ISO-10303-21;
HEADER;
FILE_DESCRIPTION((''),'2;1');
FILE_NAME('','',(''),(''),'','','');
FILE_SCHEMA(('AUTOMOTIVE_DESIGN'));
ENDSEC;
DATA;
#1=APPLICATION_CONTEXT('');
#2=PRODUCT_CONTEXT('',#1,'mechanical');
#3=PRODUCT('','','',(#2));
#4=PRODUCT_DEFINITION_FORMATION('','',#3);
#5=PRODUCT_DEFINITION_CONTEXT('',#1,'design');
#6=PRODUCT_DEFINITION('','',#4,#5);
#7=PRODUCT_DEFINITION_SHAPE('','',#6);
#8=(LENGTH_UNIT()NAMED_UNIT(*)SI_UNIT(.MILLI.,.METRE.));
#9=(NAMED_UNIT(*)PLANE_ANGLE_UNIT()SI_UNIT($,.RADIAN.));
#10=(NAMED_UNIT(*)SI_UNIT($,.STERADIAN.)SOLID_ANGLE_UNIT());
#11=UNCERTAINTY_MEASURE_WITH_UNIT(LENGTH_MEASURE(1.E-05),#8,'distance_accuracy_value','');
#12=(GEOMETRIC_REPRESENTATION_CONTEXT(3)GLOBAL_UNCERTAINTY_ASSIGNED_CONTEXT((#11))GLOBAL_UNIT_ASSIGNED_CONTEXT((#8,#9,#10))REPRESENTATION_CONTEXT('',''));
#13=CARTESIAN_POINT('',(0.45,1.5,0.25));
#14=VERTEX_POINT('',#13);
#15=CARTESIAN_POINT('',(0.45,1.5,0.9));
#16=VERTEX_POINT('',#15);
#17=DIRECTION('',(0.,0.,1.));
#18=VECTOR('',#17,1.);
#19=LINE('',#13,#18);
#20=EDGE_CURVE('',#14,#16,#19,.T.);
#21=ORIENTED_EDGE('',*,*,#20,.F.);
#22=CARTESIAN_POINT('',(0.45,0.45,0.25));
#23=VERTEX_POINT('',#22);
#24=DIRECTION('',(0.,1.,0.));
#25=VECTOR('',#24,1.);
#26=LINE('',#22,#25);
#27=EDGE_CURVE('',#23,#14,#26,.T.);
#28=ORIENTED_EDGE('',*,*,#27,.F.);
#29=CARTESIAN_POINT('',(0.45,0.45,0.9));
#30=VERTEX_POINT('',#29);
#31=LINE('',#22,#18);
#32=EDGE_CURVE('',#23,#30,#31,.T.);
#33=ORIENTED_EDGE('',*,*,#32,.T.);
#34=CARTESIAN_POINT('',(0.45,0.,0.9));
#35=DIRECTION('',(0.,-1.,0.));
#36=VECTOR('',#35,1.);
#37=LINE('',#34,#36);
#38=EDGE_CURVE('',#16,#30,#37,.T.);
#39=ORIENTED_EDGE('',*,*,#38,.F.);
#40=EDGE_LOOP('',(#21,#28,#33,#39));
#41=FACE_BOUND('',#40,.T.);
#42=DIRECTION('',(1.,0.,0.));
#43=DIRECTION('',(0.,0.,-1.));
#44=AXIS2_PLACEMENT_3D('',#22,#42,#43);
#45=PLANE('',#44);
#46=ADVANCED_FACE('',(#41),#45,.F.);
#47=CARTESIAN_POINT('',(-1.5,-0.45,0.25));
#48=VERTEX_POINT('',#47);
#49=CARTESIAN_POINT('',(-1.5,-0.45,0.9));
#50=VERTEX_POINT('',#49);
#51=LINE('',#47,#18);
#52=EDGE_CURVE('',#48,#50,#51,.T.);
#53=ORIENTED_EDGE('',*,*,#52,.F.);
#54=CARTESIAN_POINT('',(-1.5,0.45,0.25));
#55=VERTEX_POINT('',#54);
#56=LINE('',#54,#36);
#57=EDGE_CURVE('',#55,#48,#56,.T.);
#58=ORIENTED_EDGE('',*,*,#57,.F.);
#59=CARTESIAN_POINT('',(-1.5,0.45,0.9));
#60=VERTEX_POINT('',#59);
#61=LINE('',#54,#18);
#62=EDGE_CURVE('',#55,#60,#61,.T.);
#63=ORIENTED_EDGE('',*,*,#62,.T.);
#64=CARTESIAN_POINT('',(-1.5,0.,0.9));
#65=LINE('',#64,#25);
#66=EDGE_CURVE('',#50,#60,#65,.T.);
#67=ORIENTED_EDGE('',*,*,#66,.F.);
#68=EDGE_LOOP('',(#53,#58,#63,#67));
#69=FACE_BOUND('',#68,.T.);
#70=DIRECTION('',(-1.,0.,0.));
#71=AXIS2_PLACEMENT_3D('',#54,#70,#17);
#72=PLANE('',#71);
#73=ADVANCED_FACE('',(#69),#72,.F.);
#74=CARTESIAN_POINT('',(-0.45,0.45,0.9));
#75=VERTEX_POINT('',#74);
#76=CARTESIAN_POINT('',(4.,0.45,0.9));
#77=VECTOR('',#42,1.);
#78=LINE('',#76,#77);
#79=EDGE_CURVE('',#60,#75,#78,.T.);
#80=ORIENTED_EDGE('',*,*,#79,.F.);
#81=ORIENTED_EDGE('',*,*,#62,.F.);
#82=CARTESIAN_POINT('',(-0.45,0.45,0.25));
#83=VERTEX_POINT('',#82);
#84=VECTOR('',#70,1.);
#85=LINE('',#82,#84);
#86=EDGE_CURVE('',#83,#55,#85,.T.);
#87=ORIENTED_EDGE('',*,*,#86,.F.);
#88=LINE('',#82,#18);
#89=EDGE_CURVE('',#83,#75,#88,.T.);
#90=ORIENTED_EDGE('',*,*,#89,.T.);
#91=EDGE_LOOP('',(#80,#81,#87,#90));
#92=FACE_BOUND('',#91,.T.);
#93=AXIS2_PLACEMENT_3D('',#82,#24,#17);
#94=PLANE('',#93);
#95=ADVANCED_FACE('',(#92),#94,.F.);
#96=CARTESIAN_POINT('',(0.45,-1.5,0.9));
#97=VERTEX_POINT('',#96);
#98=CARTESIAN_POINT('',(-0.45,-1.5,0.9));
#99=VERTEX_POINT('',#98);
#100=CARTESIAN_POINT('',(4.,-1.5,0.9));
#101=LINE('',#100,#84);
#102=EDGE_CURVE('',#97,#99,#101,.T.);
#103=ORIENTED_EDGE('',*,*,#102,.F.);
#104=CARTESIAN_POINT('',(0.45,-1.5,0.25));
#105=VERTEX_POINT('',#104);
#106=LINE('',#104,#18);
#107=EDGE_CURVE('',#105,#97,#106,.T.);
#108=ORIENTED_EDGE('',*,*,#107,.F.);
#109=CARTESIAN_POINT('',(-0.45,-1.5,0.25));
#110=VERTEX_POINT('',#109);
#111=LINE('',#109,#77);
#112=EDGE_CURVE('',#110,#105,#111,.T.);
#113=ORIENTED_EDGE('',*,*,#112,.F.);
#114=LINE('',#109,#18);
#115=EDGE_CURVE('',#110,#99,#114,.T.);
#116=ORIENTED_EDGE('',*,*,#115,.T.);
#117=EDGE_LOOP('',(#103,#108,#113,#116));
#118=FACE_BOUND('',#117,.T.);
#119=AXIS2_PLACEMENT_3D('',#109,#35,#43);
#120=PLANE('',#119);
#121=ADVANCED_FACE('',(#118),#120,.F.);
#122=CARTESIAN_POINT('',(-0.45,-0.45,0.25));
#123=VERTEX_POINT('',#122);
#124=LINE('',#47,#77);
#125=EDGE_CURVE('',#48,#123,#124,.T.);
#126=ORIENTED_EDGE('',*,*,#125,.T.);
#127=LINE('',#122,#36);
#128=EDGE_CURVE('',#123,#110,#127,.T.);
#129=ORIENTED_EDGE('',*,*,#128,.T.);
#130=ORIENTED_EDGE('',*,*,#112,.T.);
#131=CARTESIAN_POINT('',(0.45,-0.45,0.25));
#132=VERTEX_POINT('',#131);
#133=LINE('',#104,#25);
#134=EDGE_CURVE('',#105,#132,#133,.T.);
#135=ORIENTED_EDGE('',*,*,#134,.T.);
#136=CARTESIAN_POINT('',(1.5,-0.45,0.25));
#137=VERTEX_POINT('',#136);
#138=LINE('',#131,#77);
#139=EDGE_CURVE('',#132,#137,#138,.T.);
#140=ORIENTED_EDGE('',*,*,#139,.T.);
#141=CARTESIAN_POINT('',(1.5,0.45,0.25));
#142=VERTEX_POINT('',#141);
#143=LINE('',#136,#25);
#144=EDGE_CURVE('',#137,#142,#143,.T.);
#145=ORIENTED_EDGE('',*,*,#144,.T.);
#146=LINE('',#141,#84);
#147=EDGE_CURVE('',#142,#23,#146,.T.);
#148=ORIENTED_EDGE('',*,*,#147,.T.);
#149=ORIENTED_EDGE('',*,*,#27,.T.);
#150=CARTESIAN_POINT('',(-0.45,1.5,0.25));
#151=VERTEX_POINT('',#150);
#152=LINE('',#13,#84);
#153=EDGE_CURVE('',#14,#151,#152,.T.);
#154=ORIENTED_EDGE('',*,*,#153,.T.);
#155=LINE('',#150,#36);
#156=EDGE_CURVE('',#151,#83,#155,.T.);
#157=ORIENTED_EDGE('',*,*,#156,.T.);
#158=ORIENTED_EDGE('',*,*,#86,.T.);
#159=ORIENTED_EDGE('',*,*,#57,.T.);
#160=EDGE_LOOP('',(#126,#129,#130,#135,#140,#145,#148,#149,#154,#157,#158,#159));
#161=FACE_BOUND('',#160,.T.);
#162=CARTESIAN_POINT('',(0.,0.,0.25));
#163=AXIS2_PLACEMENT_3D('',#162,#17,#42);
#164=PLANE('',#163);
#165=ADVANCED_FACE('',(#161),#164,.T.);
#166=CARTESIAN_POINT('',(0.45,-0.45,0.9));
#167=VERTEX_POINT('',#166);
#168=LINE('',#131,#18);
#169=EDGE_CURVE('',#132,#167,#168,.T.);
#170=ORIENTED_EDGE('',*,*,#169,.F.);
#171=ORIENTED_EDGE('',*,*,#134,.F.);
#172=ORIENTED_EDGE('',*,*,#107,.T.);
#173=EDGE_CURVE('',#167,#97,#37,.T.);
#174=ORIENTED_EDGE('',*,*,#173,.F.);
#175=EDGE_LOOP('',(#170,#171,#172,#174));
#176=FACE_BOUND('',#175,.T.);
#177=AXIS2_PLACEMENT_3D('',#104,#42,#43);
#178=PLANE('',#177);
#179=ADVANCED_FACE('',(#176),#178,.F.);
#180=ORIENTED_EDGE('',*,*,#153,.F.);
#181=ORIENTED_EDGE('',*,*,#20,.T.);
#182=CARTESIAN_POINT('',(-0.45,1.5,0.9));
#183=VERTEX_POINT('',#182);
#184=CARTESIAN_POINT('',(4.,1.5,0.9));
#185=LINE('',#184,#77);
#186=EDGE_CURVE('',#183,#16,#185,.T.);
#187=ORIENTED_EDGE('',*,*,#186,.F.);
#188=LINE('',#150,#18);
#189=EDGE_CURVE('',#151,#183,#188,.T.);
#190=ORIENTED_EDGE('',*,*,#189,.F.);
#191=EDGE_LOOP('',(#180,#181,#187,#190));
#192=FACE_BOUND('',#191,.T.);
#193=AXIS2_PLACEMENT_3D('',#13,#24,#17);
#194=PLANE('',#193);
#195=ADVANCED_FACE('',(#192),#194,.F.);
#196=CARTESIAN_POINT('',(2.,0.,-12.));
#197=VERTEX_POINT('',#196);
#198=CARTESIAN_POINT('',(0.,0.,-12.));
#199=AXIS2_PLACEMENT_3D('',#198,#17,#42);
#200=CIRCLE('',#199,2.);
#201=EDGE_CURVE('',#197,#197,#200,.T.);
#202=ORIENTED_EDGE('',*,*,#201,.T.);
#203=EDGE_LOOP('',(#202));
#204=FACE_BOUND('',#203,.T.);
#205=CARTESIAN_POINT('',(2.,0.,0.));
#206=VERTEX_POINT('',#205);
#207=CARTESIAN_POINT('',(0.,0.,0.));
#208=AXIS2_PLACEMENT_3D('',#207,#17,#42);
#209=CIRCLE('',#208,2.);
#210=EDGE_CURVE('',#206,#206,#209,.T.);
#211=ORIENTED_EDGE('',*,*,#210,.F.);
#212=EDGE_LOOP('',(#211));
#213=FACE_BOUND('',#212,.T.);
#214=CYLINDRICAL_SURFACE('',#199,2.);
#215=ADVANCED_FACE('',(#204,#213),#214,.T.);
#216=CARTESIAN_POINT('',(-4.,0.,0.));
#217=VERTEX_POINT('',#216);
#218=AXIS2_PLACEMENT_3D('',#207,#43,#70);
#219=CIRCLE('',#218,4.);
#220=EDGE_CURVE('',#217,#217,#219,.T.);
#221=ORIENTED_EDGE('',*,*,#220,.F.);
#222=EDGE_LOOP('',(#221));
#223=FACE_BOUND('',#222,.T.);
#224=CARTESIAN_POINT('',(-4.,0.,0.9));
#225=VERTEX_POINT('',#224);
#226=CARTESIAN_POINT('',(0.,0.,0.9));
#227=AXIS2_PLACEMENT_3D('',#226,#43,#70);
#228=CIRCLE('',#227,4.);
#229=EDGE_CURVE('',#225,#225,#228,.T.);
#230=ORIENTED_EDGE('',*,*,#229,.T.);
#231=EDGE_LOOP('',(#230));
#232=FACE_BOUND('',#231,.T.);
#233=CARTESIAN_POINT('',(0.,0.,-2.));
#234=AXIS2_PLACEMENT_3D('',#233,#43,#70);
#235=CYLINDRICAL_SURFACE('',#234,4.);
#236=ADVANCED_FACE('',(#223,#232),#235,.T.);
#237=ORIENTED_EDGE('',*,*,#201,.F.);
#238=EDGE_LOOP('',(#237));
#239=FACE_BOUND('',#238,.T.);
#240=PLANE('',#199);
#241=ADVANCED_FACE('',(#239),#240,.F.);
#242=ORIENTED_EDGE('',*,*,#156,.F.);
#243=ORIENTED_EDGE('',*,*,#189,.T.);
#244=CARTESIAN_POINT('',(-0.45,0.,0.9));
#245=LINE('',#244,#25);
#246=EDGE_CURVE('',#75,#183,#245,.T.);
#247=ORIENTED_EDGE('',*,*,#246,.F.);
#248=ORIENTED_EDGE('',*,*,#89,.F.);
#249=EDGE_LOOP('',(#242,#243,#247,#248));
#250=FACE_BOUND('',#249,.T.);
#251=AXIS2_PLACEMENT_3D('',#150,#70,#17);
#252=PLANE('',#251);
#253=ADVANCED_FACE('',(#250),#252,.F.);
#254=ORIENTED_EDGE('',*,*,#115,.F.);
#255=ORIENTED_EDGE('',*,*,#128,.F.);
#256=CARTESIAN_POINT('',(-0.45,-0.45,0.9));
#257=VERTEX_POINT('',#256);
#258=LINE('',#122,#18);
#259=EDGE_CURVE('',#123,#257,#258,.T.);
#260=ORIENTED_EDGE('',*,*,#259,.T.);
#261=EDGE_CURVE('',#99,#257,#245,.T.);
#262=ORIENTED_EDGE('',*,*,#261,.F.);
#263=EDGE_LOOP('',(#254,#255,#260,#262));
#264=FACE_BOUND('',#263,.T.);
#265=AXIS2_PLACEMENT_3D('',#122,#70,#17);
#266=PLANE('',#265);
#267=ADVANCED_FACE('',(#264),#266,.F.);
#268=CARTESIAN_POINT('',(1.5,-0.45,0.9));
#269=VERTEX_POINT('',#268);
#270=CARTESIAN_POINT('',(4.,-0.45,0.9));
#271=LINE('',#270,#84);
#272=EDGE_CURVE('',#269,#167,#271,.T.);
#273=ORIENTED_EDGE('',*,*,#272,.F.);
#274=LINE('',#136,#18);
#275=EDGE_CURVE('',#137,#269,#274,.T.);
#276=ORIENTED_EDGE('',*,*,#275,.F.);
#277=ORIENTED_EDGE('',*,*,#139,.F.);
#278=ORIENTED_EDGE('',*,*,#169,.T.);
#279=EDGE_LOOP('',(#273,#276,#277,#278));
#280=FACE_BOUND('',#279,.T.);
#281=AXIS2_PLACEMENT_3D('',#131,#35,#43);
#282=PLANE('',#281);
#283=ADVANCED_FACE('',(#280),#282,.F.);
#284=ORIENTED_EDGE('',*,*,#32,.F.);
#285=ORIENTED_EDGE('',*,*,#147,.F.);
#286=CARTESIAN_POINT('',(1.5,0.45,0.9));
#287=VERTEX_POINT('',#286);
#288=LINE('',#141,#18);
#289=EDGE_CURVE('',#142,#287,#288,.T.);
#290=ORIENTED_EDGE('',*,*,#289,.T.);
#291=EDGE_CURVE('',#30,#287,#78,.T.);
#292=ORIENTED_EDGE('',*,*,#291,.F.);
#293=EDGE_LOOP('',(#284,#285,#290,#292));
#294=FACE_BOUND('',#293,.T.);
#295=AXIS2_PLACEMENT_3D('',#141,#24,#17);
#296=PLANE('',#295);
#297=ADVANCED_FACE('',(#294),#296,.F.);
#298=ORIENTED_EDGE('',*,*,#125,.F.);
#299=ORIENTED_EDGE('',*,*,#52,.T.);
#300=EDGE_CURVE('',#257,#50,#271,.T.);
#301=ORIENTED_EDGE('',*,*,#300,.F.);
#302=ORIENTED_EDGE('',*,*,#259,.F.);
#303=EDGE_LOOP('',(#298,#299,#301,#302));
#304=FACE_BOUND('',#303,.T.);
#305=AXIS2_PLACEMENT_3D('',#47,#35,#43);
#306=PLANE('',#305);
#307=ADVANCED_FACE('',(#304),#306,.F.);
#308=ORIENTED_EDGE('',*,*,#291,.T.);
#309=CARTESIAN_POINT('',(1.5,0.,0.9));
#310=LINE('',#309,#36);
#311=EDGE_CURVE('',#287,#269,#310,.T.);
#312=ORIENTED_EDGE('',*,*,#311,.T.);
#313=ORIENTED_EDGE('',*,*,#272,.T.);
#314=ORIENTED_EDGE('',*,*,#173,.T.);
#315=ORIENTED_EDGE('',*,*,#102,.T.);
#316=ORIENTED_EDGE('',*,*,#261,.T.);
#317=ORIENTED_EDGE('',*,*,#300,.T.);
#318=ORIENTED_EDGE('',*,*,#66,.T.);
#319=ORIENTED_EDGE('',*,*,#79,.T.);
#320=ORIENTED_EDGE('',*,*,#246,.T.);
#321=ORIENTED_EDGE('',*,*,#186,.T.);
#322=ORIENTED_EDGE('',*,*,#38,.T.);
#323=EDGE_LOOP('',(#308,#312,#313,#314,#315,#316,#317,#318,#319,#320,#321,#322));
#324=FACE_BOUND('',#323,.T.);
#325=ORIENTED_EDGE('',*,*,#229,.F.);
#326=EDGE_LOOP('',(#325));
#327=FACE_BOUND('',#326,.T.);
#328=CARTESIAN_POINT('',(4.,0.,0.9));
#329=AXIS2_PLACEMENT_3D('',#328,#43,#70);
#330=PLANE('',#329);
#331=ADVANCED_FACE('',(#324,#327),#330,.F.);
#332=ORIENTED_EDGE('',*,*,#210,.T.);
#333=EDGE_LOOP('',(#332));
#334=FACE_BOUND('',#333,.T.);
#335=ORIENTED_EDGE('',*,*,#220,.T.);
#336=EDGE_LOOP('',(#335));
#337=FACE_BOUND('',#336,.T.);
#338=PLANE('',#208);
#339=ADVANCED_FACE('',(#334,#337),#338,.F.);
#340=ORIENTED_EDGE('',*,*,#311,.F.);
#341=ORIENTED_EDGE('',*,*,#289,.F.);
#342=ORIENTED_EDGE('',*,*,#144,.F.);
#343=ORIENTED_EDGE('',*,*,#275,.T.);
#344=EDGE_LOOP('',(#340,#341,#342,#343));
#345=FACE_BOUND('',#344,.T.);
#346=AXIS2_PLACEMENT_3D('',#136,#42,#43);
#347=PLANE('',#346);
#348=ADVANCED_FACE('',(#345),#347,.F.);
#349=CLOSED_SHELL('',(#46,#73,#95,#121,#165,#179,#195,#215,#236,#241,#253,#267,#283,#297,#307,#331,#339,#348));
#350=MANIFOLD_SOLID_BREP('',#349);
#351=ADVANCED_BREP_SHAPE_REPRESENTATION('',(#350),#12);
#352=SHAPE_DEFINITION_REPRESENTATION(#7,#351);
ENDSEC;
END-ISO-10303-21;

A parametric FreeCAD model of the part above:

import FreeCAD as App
import Part
import Sketcher
Q = App.Units.Quantity


def add_polygon(sketch, points):
    """Adds a closed chain of lines whose ends are joined by coincident constraints."""
    first, n = sketch.GeometryCount, len(points)
    for a, b in zip(points, points[1:] + points[:1]):
        sketch.addGeometry(Part.LineSegment(App.Vector(*a, 0), App.Vector(*b, 0)), False)
    for i in range(n):
        sketch.addConstraint(Sketcher.Constraint("Coincident", first + i, 2, first + (i + 1) % n, 1))

doc = App.newDocument("Part")
params = doc.addObject("Spreadsheet::Sheet", "Params")
for row, (alias, value) in enumerate([
    ("sketch1_diameter", "4 mm"),
    ("pad1_length", "12 mm"),
    ("sketch2_width", "4 mm"),
    ("sketch2_height", "0.9 mm"),
    ("revolution_angle", "360 deg"),
    ("sketch3_width", "0.9 mm"),
    ("pocket1_length", "0.66 mm"),
], start=1):
    params.set(f"A{row}", alias)
    params.set(f"B{row}", "=" + value)
    params.setAlias(f"B{row}", alias)

body = doc.addObject("PartDesign::Body", "Body")

sketch1 = body.newObject("Sketcher::SketchObject", "Sketch")
sketch1.AttachmentSupport = (doc.getObject("XY_Plane"), [""])
sketch1.MapMode = "FlatFace"
sketch1.addGeometry(Part.Circle(App.Vector(0, 0, 0), App.Vector(0, 0, 1), 2), False)
sketch1.addConstraint(Sketcher.Constraint("Coincident", 0, 3, -1, 1))
sketch1.addConstraint(Sketcher.Constraint("Diameter", 0, Q("4 mm")))
sketch1.setExpression("Constraints[1]", "Params.sketch1_diameter")
pad1 = body.newObject("PartDesign::Pad", "Pad")
pad1.Profile = sketch1
pad1.setExpression("Length", "Params.pad1_length")
pad1.Reversed = True

sketch2 = body.newObject("Sketcher::SketchObject", "Sketch001")
sketch2.AttachmentSupport = (doc.getObject("XZ_Plane"), [""])
sketch2.MapMode = "FlatFace"
add_polygon(sketch2, [(0, 0), (0, 0.9), (4, 0.9), (4, 0)])
sketch2.addConstraint(Sketcher.Constraint("Vertical", 0))
sketch2.addConstraint(Sketcher.Constraint("Horizontal", 1))
sketch2.addConstraint(Sketcher.Constraint("Vertical", 2))
sketch2.addConstraint(Sketcher.Constraint("Horizontal", 3))
sketch2.addConstraint(Sketcher.Constraint("Coincident", 3, 2, -1, 1))
sketch2.addConstraint(Sketcher.Constraint("DistanceX", 1, 1, 1, 2, Q("4 mm")))
sketch2.addConstraint(Sketcher.Constraint("DistanceY", 0, 1, 0, 2, Q("0.9 mm")))
sketch2.setExpression("Constraints[9]", "Params.sketch2_width")
sketch2.setExpression("Constraints[10]", "Params.sketch2_height")
revolution = body.newObject("PartDesign::Revolution", "Revolution")
revolution.Profile = sketch2
revolution.ReferenceAxis = (sketch2, ["V_Axis"])
revolution.setExpression("Angle", "Params.revolution_angle")

sketch3 = body.newObject("Sketcher::SketchObject", "Sketch002")
sketch3.AttachmentSupport = (doc.getObject("XY_Plane"), [""])
sketch3.MapMode = "FlatFace"
sketch3.AttachmentOffset = App.Placement(App.Vector(0, 0, 0.91), App.Rotation())
add_polygon(sketch3, [(-0.5, -1.5), (0.5, -1.5), (0.5, -0.5), (1.5, -0.5), (1.5, 0.5), (0.5, 0.5), (0.5, 1.5), (-0.5, 1.5), (-0.5, 0.5), (-1.5, 0.5), (-1.5, -0.5), (-0.5, -0.5)])
sketch3.addConstraint(Sketcher.Constraint("Horizontal", 0))
sketch3.addConstraint(Sketcher.Constraint("Vertical", 1))
sketch3.addConstraint(Sketcher.Constraint("Horizontal", 2))
sketch3.addConstraint(Sketcher.Constraint("Vertical", 3))
sketch3.addConstraint(Sketcher.Constraint("Horizontal", 4))
sketch3.addConstraint(Sketcher.Constraint("Vertical", 5))
sketch3.addConstraint(Sketcher.Constraint("Horizontal", 6))
sketch3.addConstraint(Sketcher.Constraint("Vertical", 7))
sketch3.addConstraint(Sketcher.Constraint("Horizontal", 8))
sketch3.addConstraint(Sketcher.Constraint("Vertical", 9))
sketch3.addConstraint(Sketcher.Constraint("Horizontal", 10))
sketch3.addConstraint(Sketcher.Constraint("Vertical", 11))
sketch3.addConstraint(Sketcher.Constraint("Symmetric", 0, 2, 6, 2, -1, 1))
sketch3.addConstraint(Sketcher.Constraint("Symmetric", 2, 2, 8, 2, -1, 1))
sketch3.addConstraint(Sketcher.Constraint("Symmetric", 4, 2, 10, 2, -1, 1))
sketch3.addConstraint(Sketcher.Constraint("Symmetric", 4, 2, 7, 2, -2))
sketch3.addConstraint(Sketcher.Constraint("Equal", 10, 1))
sketch3.addConstraint(Sketcher.Constraint("Equal", 6, 3))
sketch3.addConstraint(Sketcher.Constraint("DistanceX", 0, 1, 0, 2, Q("0.9 mm")))
sketch3.addConstraint(Sketcher.Constraint("DistanceY", 0, 2, 5, 2, Q("3 mm")))
sketch3.setExpression("Constraints[30]", "Params.sketch3_width")
pocket1 = body.newObject("PartDesign::Pocket", "Pocket")
pocket1.Profile = sketch3
pocket1.setExpression("Length", "Params.pocket1_length")

doc.recompute()
